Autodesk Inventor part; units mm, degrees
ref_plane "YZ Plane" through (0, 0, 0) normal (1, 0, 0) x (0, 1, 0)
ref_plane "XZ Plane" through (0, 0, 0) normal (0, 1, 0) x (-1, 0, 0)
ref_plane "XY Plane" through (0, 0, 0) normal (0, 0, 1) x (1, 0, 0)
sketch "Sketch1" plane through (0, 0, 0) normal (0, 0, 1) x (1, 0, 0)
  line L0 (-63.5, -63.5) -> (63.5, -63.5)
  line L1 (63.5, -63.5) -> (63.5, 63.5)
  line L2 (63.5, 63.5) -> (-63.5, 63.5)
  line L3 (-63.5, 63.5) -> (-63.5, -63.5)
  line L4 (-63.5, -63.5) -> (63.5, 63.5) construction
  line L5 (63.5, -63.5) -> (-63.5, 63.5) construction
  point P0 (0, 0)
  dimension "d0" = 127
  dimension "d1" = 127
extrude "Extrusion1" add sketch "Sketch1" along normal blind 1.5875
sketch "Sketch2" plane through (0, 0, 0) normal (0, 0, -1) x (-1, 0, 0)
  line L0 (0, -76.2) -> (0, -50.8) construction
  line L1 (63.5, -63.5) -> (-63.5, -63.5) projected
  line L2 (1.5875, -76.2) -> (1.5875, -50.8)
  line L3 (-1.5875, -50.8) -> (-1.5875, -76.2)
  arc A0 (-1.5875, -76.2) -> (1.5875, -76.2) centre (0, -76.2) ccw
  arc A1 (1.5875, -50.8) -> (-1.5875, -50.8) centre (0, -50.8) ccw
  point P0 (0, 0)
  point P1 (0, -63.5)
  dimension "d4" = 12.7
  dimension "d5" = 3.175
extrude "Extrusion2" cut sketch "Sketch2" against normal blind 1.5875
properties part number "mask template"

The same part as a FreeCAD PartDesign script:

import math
import FreeCAD as App
import Part
import Sketcher

V = App.Vector
Q = App.Units.Quantity

doc = App.newDocument("Part")
body = doc.addObject("PartDesign::Body", "Body")

# Sketch on XY plane
sketch1 = body.newObject("Sketcher::SketchObject", "Sketch")
sketch1.AttachmentSupport = (doc.getObject("XY_Plane"), [""])
sketch1.MapMode = "FlatFace"
sketch1.addGeometry(Part.LineSegment(V(-63.5, 63.5, 0), V(-63.5, -63.5, 0)), False)
sketch1.addGeometry(Part.LineSegment(V(-63.5, -63.5, 0), V(63.5, -63.5, 0)), False)
sketch1.addGeometry(Part.LineSegment(V(63.5, -63.5, 0), V(63.5, 63.5, 0)), False)
sketch1.addGeometry(Part.LineSegment(V(63.5, 63.5, 0), V(-63.5, 63.5, 0)), False)
sketch1.addConstraint(Sketcher.Constraint("Coincident", 0, 2, 1, 1))
sketch1.addConstraint(Sketcher.Constraint("Coincident", 1, 2, 2, 1))
sketch1.addConstraint(Sketcher.Constraint("Coincident", 2, 2, 3, 1))
sketch1.addConstraint(Sketcher.Constraint("Coincident", 3, 2, 0, 1))
sketch1.addConstraint(Sketcher.Constraint("Vertical", 0))
sketch1.addConstraint(Sketcher.Constraint("Horizontal", 1))
sketch1.addConstraint(Sketcher.Constraint("Vertical", 2))
sketch1.addConstraint(Sketcher.Constraint("Horizontal", 3))
sketch1.addConstraint(Sketcher.Constraint("Symmetric", 0, 2, 2, 2, -1, 1))
sketch1.addConstraint(Sketcher.Constraint("Equal", 3, 0))
sketch1.addConstraint(Sketcher.Constraint("DistanceX", 1, 1, 1, 2, Q("5 in")))
pad1 = body.newObject("PartDesign::Pad", "Pad")
pad1.Profile = sketch1
pad1.Length = Q("0.0625 in")

# Sketch on XY plane
sketch2 = body.newObject("Sketcher::SketchObject", "Sketch001")
sketch2.AttachmentSupport = (doc.getObject("XY_Plane"), [""])
sketch2.MapMode = "FlatFace"
sketch2.addGeometry(Part.LineSegment(V(-1.5875, -76.2, 0), V(-1.5875, -50.8, 0)), False)
sketch2.addGeometry(Part.ArcOfCircle(Part.Circle(V(0, -50.8, 0), V(0, 0, 1), 1.5875), math.radians(0), math.radians(180)), False)
sketch2.addGeometry(Part.LineSegment(V(1.5875, -50.8, 0), V(1.5875, -76.2, 0)), False)
sketch2.addGeometry(Part.ArcOfCircle(Part.Circle(V(0, -76.2, 0), V(0, 0, 1), 1.5875), math.radians(180), math.radians(360)), False)
sketch2.addConstraint(Sketcher.Constraint("Tangent", 0, 2, 1, 2))
sketch2.addConstraint(Sketcher.Constraint("Tangent", 1, 1, 2, 1))
sketch2.addConstraint(Sketcher.Constraint("Tangent", 2, 2, 3, 2))
sketch2.addConstraint(Sketcher.Constraint("Tangent", 3, 1, 0, 1))
sketch2.addConstraint(Sketcher.Constraint("Vertical", 0))
sketch2.addConstraint(Sketcher.Constraint("Vertical", 2))
sketch2.addConstraint(Sketcher.Constraint("PointOnObject", 1, 3, -2))
sketch2.addConstraint(Sketcher.Constraint("Radius", 1, Q("0.0625 in")))
sketch2.addConstraint(Sketcher.Constraint("DistanceY", 0, 1, 0, 2, Q("1 in")))
sketch2.addConstraint(Sketcher.Constraint("DistanceY", 1, 3, -1, 1, Q("2 in")))
pocket1 = body.newObject("PartDesign::Pocket", "Pocket")
pocket1.Profile = sketch2
pocket1.Length = Q("0.0625 in")
pocket1.Reversed = True

doc.recompute()
